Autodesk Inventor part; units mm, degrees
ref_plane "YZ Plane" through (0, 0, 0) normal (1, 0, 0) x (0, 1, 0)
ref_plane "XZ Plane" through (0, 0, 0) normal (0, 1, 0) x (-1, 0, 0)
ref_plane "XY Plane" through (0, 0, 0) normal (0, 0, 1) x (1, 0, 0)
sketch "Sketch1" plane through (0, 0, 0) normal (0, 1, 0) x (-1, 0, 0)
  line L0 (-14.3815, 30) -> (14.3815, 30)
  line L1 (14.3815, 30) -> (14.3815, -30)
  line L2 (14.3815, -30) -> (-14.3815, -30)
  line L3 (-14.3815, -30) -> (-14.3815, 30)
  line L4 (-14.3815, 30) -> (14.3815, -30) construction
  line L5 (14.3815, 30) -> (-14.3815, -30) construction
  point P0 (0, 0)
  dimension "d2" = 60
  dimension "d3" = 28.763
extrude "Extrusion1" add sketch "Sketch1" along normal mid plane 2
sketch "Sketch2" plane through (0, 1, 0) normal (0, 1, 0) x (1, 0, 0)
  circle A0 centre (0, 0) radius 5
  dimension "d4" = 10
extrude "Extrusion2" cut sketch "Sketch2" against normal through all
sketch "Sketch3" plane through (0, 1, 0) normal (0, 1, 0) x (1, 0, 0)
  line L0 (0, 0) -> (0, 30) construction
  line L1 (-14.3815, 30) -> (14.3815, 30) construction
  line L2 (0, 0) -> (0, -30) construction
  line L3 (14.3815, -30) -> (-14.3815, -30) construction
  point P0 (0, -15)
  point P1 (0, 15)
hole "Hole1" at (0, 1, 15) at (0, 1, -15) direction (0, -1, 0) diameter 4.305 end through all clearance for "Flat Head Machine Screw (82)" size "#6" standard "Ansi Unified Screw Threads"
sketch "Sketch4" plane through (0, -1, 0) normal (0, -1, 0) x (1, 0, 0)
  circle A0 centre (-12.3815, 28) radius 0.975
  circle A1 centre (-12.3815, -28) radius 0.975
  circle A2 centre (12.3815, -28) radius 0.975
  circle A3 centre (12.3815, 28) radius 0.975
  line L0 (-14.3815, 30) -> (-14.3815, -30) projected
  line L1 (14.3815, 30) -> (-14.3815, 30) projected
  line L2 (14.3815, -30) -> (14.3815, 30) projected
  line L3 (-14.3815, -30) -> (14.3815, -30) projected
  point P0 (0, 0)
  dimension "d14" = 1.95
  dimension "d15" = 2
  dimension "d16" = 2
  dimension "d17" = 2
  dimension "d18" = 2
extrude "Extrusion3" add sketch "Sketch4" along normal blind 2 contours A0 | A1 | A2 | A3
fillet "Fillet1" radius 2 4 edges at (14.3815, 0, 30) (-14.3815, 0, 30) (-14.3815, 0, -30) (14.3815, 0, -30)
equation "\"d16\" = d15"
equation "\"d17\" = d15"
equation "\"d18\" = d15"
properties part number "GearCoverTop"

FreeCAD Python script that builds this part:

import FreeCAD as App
import Part
import Sketcher
Q = App.Units.Quantity


def edges_at(feature, points):
    """Names of the edges that pass closest to the given points."""
    edges = feature.Shape.Edges
    near = lambda p: min(range(len(edges)), key=lambda i: edges[i].distToShape(Part.Vertex(*p))[0])
    return sorted({f"Edge{near(p) + 1}" for p in points})

doc = App.newDocument("Part")
body = doc.addObject("PartDesign::Body", "Body")

sketch1 = doc.addObject("Sketcher::SketchObject", "Sketch")
body.addObject(sketch1)
sketch1.AttachmentSupport = (doc.XZ_Plane, [""])
sketch1.MapMode = "FlatFace"
sketch1.addGeometry(Part.LineSegment(App.Vector(-14, 30, 0), App.Vector(14, 30, 0)), False)
sketch1.addGeometry(Part.LineSegment(App.Vector(14, 30, 0), App.Vector(14, -30, 0)), False)
sketch1.addGeometry(Part.LineSegment(App.Vector(14, -30, 0), App.Vector(-14, -30, 0)), False)
sketch1.addGeometry(Part.LineSegment(App.Vector(-14, -30, 0), App.Vector(-14, 30, 0)), False)
sketch1.addConstraint(Sketcher.Constraint("Coincident", 0, 2, 1, 1))
sketch1.addConstraint(Sketcher.Constraint("Coincident", 1, 2, 2, 1))
sketch1.addConstraint(Sketcher.Constraint("Coincident", 2, 2, 3, 1))
sketch1.addConstraint(Sketcher.Constraint("Coincident", 3, 2, 0, 1))
sketch1.addConstraint(Sketcher.Constraint("Horizontal", 0))
sketch1.addConstraint(Sketcher.Constraint("Vertical", 1))
sketch1.addConstraint(Sketcher.Constraint("Horizontal", 2))
sketch1.addConstraint(Sketcher.Constraint("Vertical", 3))
sketch1.addConstraint(Sketcher.Constraint("Symmetric", 0, 2, 2, 2, -1, 1))
sketch1.addConstraint(Sketcher.Constraint("DistanceY", 1, 2, 1, 1, Q("60 mm")))
sketch1.addConstraint(Sketcher.Constraint("DistanceX", 0, 1, 0, 2, Q("28.763 mm")))
pad1 = doc.addObject("PartDesign::Pad", "Pad")
body.addObject(pad1)
pad1.Profile = sketch1
pad1.Length = 2
pad1.Midplane = True

sketch2 = doc.addObject("Sketcher::SketchObject", "Sketch001")
body.addObject(sketch2)
sketch2.AttachmentSupport = (doc.XZ_Plane, [""])
sketch2.MapMode = "FlatFace"
sketch2.AttachmentOffset = App.Placement(App.Vector(0, 0, -1), App.Rotation())
sketch2.addGeometry(Part.Circle(App.Vector(0, 0, 0), App.Vector(0, 0, 1), 5), False)
sketch2.addConstraint(Sketcher.Constraint("Coincident", 0, 3, -1, 1))
sketch2.addConstraint(Sketcher.Constraint("Diameter", 0, Q("10 mm")))
pocket1 = doc.addObject("PartDesign::Pocket", "Pocket")
body.addObject(pocket1)
pocket1.Profile = sketch2
pocket1.Type = "ThroughAll"
pocket1.Reversed = True

sketch3 = doc.addObject("Sketcher::SketchObject", "Sketch002")
body.addObject(sketch3)
sketch3.AttachmentSupport = (doc.XZ_Plane, [""])
sketch3.MapMode = "FlatFace"
sketch3.AttachmentOffset = App.Placement(App.Vector(0, 0, -1), App.Rotation())
sketch3.addGeometry(Part.Circle(App.Vector(0, 15, 0), App.Vector(0, 0, 1), 2.2), False)
sketch3.addGeometry(Part.Circle(App.Vector(0, -15, 0), App.Vector(0, 0, 1), 2.2), False)
sketch3.addConstraint(Sketcher.Constraint("Equal", 0, 1))
sketch3.addConstraint(Sketcher.Constraint("Symmetric", 0, 3, 1, 3, -1, 1))
sketch3.addConstraint(Sketcher.Constraint("PointOnObject", 0, 3, -2))
sketch3.addConstraint(Sketcher.Constraint("Diameter", 0, Q("4.305 mm")))
sketch3.addConstraint(Sketcher.Constraint("DistanceY", -1, 1, 0, 3, Q("15 mm")))
doc.recompute()
hole = doc.addObject("PartDesign::Hole", "Hole")
body.addObject(hole)
hole.Profile = sketch3
hole.ThreadType = "None"
hole.Diameter = 4.305
hole.DepthType = "ThroughAll"
hole.Reversed = True

sketch4 = doc.addObject("Sketcher::SketchObject", "Sketch003")
body.addObject(sketch4)
sketch4.AttachmentSupport = (doc.XZ_Plane, [""])
sketch4.MapMode = "FlatFace"
sketch4.AttachmentOffset = App.Placement(App.Vector(0, 0, 1), App.Rotation())
sketch4.addGeometry(Part.Circle(App.Vector(-12.4, 28, 0), App.Vector(0, 0, 1), 1), False)
sketch4.addGeometry(Part.Circle(App.Vector(-12.4, -28, 0), App.Vector(0, 0, 1), 1), False)
sketch4.addGeometry(Part.Circle(App.Vector(12.4, -28, 0), App.Vector(0, 0, 1), 1), False)
sketch4.addGeometry(Part.Circle(App.Vector(12.4, 28, 0), App.Vector(0, 0, 1), 1), False)
sketch4.addConstraint(Sketcher.Constraint("Equal", 0, 1))
sketch4.addConstraint(Sketcher.Constraint("Equal", 1, 2))
sketch4.addConstraint(Sketcher.Constraint("Equal", 2, 3))
sketch4.addConstraint(Sketcher.Constraint("Symmetric", 0, 3, 2, 3, -1, 1))
sketch4.addConstraint(Sketcher.Constraint("Symmetric", 1, 3, 3, 3, -1, 1))
sketch4.addConstraint(Sketcher.Constraint("Symmetric", 1, 3, 2, 3, -2))
sketch4.addConstraint(Sketcher.Constraint("Diameter", 0, Q("1.95 mm")))
sketch4.addConstraint(Sketcher.Constraint("DistanceY", -1, 1, 0, 3, Q("28 mm")))
sketch4.addConstraint(Sketcher.Constraint("DistanceX", 1, 3, 2, 3, Q("24.763 mm")))
pad2 = doc.addObject("PartDesign::Pad", "Pad001")
body.addObject(pad2)
pad2.Profile = sketch4
pad2.Length = 2
doc.recompute()

fillet = doc.addObject("PartDesign::Fillet", "Fillet")
body.addObject(fillet)
fillet.Base = (pad2, edges_at(pad2, [
    (14.382, 0, 30),
    (-14.382, 0, 30),
    (-14.382, 0, -30),
    (14.382, 0, -30),
]))
fillet.Radius = 2

doc.recompute()
